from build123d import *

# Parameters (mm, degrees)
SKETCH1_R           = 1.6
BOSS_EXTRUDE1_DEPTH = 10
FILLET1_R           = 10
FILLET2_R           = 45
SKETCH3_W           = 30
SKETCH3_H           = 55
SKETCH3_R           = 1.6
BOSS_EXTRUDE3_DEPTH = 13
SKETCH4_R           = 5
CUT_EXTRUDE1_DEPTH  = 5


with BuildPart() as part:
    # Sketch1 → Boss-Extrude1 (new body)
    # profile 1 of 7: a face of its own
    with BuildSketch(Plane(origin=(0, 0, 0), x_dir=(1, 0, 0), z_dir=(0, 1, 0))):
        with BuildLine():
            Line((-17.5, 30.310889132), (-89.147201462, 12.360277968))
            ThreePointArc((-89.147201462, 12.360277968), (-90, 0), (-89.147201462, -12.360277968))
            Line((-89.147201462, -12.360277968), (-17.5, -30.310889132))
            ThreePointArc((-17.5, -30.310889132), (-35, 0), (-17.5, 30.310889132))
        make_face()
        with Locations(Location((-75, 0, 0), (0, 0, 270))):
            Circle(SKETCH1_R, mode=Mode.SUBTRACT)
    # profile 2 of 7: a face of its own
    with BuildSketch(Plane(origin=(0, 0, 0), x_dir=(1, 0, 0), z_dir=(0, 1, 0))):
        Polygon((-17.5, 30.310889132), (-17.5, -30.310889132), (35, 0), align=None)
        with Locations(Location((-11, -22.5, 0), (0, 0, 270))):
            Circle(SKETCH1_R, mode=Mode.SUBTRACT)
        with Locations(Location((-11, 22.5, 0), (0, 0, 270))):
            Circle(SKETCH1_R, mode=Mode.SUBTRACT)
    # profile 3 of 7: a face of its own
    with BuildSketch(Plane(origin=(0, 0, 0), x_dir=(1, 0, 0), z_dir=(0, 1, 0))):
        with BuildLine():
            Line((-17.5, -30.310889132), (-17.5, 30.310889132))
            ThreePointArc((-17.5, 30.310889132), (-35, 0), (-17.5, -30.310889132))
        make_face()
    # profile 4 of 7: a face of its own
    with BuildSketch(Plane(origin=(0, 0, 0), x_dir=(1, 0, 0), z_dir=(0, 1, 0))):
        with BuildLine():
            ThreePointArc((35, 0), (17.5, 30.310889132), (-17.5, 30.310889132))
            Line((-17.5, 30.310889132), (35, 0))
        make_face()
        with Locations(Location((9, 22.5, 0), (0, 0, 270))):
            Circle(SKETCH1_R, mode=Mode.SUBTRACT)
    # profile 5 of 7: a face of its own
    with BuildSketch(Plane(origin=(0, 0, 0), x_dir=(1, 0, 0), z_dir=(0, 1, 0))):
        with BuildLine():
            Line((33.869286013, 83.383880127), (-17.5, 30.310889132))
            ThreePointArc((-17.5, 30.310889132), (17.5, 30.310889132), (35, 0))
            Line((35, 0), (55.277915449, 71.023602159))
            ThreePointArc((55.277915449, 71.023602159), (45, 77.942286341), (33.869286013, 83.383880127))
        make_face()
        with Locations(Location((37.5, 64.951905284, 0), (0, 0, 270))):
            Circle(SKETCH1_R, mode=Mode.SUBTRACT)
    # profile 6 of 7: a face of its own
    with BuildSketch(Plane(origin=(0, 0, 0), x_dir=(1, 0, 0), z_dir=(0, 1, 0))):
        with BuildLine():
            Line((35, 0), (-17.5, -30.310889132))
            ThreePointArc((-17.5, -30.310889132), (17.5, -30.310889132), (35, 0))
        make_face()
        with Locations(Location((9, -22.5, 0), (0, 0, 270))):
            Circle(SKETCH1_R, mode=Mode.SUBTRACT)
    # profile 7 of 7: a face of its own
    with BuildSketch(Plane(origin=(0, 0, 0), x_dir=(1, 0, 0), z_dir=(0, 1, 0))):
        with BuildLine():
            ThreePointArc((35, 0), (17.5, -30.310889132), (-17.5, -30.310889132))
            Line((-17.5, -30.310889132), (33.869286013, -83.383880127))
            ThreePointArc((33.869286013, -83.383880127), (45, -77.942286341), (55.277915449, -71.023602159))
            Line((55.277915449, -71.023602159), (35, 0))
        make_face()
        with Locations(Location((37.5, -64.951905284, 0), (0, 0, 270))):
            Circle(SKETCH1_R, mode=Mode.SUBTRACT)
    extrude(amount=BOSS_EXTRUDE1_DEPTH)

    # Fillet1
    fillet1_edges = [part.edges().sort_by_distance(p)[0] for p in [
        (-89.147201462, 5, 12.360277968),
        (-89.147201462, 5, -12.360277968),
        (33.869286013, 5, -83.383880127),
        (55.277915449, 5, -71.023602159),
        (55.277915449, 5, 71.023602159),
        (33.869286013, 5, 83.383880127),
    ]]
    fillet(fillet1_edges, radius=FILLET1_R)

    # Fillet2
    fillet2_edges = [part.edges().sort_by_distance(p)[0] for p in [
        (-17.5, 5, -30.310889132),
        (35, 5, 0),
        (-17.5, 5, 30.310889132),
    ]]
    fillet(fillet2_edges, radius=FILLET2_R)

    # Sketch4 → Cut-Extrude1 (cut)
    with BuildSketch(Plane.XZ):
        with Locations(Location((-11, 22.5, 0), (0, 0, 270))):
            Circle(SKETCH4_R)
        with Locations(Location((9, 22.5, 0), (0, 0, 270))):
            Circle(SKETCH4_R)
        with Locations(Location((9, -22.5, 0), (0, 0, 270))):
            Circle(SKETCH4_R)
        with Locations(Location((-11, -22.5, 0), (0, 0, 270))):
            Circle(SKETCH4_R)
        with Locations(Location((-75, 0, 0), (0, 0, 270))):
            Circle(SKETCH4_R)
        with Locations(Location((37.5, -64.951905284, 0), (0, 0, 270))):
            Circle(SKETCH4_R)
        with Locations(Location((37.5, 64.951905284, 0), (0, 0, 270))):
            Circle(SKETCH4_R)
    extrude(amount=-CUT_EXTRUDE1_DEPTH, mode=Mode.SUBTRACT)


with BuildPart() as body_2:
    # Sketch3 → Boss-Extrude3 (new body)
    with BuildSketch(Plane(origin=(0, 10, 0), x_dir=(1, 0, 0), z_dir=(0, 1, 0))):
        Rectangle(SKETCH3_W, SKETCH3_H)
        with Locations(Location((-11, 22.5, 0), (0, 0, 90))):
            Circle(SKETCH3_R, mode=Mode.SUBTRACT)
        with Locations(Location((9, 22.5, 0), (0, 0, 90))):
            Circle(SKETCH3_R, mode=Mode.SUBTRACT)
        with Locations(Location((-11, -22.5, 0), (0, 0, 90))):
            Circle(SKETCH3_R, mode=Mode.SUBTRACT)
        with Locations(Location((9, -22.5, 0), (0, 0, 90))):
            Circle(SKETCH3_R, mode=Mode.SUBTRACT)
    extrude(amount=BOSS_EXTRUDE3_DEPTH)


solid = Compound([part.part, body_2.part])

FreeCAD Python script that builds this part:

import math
import FreeCAD as App
import Part
import Sketcher
from FreeCAD import Vector
Q = App.Units.Quantity


def edges_at(feature, points):
    """Names of the edges that pass closest to the given points."""
    edges = feature.Shape.Edges
    near = lambda p: min(range(len(edges)), key=lambda i: edges[i].distToShape(Part.Vertex(*p))[0])
    return sorted({f"Edge{near(p) + 1}" for p in points})

doc = App.newDocument("Part")
body = doc.addObject("PartDesign::Body", "Body")

# Sketch on XZ plane
sketch1 = body.newObject("Sketcher::SketchObject", "Sketch")
sketch1.AttachmentSupport = (doc.getObject("XZ_Plane"), [""])
sketch1.MapMode = "FlatFace"
sketch1.addGeometry(Part.LineSegment(Vector(-17.5, -30.3, 0), Vector(-89.1, -12.4, 0)), False)
sketch1.addGeometry(Part.ArcOfCircle(Part.Circle(Vector(0, 0, 0), Vector(0, 0, 1), 90), math.radians(172.11), math.radians(187.89)), False)
sketch1.addGeometry(Part.LineSegment(Vector(-89.1, 12.4, 0), Vector(-17.5, 30.3, 0)), False)
sketch1.addGeometry(Part.LineSegment(Vector(-17.5, 30.3, 0), Vector(33.9, 83.4, 0)), False)
sketch1.addGeometry(Part.ArcOfCircle(Part.Circle(Vector(0, 0, 0), Vector(0, 0, 1), 90), math.radians(52.11), math.radians(67.89)), False)
sketch1.addGeometry(Part.LineSegment(Vector(55.3, 71, 0), Vector(35, 0, 0)), False)
sketch1.addGeometry(Part.LineSegment(Vector(35, 0, 0), Vector(55.3, -71, 0)), False)
sketch1.addGeometry(Part.ArcOfCircle(Part.Circle(Vector(0, 0, 0), Vector(0, 0, 1), 90), math.radians(-67.89), math.radians(-52.11)), False)
sketch1.addGeometry(Part.LineSegment(Vector(33.9, -83.4, 0), Vector(-17.5, -30.3, 0)), False)
sketch1.addGeometry(Part.Circle(Vector(-75, 0, 0), Vector(0, 0, 1), 1.6), False)
sketch1.addGeometry(Part.Circle(Vector(-11, -22.5, 0), Vector(0, 0, 1), 1.6), False)
sketch1.addGeometry(Part.Circle(Vector(-11, 22.5, 0), Vector(0, 0, 1), 1.6), False)
sketch1.addGeometry(Part.Circle(Vector(9, -22.5, 0), Vector(0, 0, 1), 1.6), False)
sketch1.addGeometry(Part.Circle(Vector(9, 22.5, 0), Vector(0, 0, 1), 1.6), False)
sketch1.addGeometry(Part.Circle(Vector(37.5, -65, 0), Vector(0, 0, 1), 1.6), False)
sketch1.addGeometry(Part.Circle(Vector(37.5, 65, 0), Vector(0, 0, 1), 1.6), False)
sketch1.addConstraint(Sketcher.Constraint("Coincident", 0, 2, 1, 2))
sketch1.addConstraint(Sketcher.Constraint("Coincident", 1, 1, 2, 1))
sketch1.addConstraint(Sketcher.Constraint("Coincident", 2, 2, 3, 1))
sketch1.addConstraint(Sketcher.Constraint("Coincident", 3, 2, 4, 2))
sketch1.addConstraint(Sketcher.Constraint("Coincident", 4, 1, 5, 1))
sketch1.addConstraint(Sketcher.Constraint("Coincident", 5, 2, 6, 1))
sketch1.addConstraint(Sketcher.Constraint("Coincident", 6, 2, 7, 2))
sketch1.addConstraint(Sketcher.Constraint("Coincident", 7, 1, 8, 1))
sketch1.addConstraint(Sketcher.Constraint("Coincident", 8, 2, 0, 1))
sketch1.addConstraint(Sketcher.Constraint("Coincident", 1, 3, -1, 1))
sketch1.addConstraint(Sketcher.Constraint("Coincident", 4, 3, -1, 1))
sketch1.addConstraint(Sketcher.Constraint("Coincident", 7, 3, -1, 1))
sketch1.addConstraint(Sketcher.Constraint("Equal", 1, 4))
sketch1.addConstraint(Sketcher.Constraint("Equal", 4, 7))
sketch1.addConstraint(Sketcher.Constraint("Equal", 9, 10))
sketch1.addConstraint(Sketcher.Constraint("Equal", 10, 11))
sketch1.addConstraint(Sketcher.Constraint("Equal", 11, 12))
sketch1.addConstraint(Sketcher.Constraint("Equal", 12, 13))
sketch1.addConstraint(Sketcher.Constraint("Equal", 13, 14))
sketch1.addConstraint(Sketcher.Constraint("Equal", 14, 15))
sketch1.addConstraint(Sketcher.Constraint("Symmetric", 10, 3, 11, 3, -1))
sketch1.addConstraint(Sketcher.Constraint("Symmetric", 12, 3, 13, 3, -1))
sketch1.addConstraint(Sketcher.Constraint("Symmetric", 14, 3, 15, 3, -1))
sketch1.addConstraint(Sketcher.Constraint("Symmetric", 2, 2, 8, 2, -1))
sketch1.addConstraint(Sketcher.Constraint("PointOnObject", 9, 3, -1))
sketch1.addConstraint(Sketcher.Constraint("PointOnObject", 5, 2, -1))
sketch1.addConstraint(Sketcher.Constraint("Horizontal", 10, 3, 12, 3))
sketch1.addConstraint(Sketcher.Constraint("Vertical", 0, 2, 1, 1))
sketch1.addConstraint(Sketcher.Constraint("Vertical", 4, 1, 6, 2))
sketch1.addConstraint(Sketcher.Constraint("Vertical", 3, 2, 7, 1))
sketch1.addConstraint(Sketcher.Constraint("Equal", 2, 3))
sketch1.addConstraint(Sketcher.Constraint("Equal", 3, 5))
sketch1.addConstraint(Sketcher.Constraint("Radius", 1, Q("90 mm")))
sketch1.addConstraint(Sketcher.Constraint("Diameter", 9, Q("3.2 mm")))
sketch1.addConstraint(Sketcher.Constraint("DistanceX", 9, 3, -1, 1, Q("75 mm")))
sketch1.addConstraint(Sketcher.Constraint("DistanceX", 10, 3, -1, 1, Q("11 mm")))
sketch1.addConstraint(Sketcher.Constraint("DistanceX", -1, 1, 12, 3, Q("9 mm")))
sketch1.addConstraint(Sketcher.Constraint("DistanceX", -1, 1, 5, 2, Q("35 mm")))
sketch1.addConstraint(Sketcher.Constraint("DistanceY", 10, 3, 11, 3, Q("45 mm")))
sketch1.addConstraint(Sketcher.Constraint("DistanceX", -1, 1, 14, 3, Q("37.5 mm")))
sketch1.addConstraint(Sketcher.Constraint("DistanceX", 2, 2, -1, 1, Q("17.5 mm")))
sketch1.addConstraint(Sketcher.Constraint("DistanceX", 0, 2, -1, 1, Q("89.147201 mm")))
sketch1.addConstraint(Sketcher.Constraint("DistanceY", -1, 1, 2, 2, Q("30.310889 mm")))
sketch1.addConstraint(Sketcher.Constraint("DistanceY", 14, 3, -1, 1, Q("64.951905 mm")))
pad1 = body.newObject("PartDesign::Pad", "Pad")
pad1.Profile = sketch1
pad1.Length = 10
pad1.Reversed = True
doc.recompute()

fillet = body.newObject("PartDesign::Fillet", "Fillet")
fillet.Base = (pad1, edges_at(pad1, [
    (-89.147, 5, 12.36),
    (-89.147, 5, -12.36),
    (33.869, 5, -83.384),
    (55.278, 5, -71.024),
    (55.278, 5, 71.024),
    (33.869, 5, 83.384),
]))
fillet.Radius = 10
doc.recompute()

fillet2 = body.newObject("PartDesign::Fillet", "Fillet001")
fillet2.Base = (fillet, edges_at(fillet, [(-17.5, 5, -30.311), (35, 5, 0), (-17.5, 5, 30.311)]))
fillet2.Radius = 45

# Sketch on XZ plane
sketch2 = body.newObject("Sketcher::SketchObject", "Sketch001")
sketch2.AttachmentSupport = (doc.getObject("XZ_Plane"), [""])
sketch2.MapMode = "FlatFace"
sketch2.addGeometry(Part.Circle(Vector(-11, 22, 0), Vector(0, 0, 1), 5), False)
sketch2.addGeometry(Part.Circle(Vector(9, 22, 0), Vector(0, 0, 1), 5), False)
sketch2.addGeometry(Part.Circle(Vector(9, -22, 0), Vector(0, 0, 1), 5), False)
sketch2.addGeometry(Part.Circle(Vector(-11, -22, 0), Vector(0, 0, 1), 5), False)
sketch2.addGeometry(Part.Circle(Vector(-75, 0, 0), Vector(0, 0, 1), 5), False)
sketch2.addGeometry(Part.Circle(Vector(38, -65, 0), Vector(0, 0, 1), 5), False)
sketch2.addGeometry(Part.Circle(Vector(38, 65, 0), Vector(0, 0, 1), 5), False)
sketch2.addConstraint(Sketcher.Constraint("Equal", 0, 1))
sketch2.addConstraint(Sketcher.Constraint("Equal", 1, 2))
sketch2.addConstraint(Sketcher.Constraint("Equal", 2, 3))
sketch2.addConstraint(Sketcher.Constraint("Equal", 3, 4))
sketch2.addConstraint(Sketcher.Constraint("Equal", 4, 5))
sketch2.addConstraint(Sketcher.Constraint("Equal", 5, 6))
sketch2.addConstraint(Sketcher.Constraint("Symmetric", 1, 3, 2, 3, -1))
sketch2.addConstraint(Sketcher.Constraint("Symmetric", 0, 3, 3, 3, -1))
sketch2.addConstraint(Sketcher.Constraint("Symmetric", 5, 3, 6, 3, -1))
sketch2.addConstraint(Sketcher.Constraint("PointOnObject", 4, 3, -1))
sketch2.addConstraint(Sketcher.Constraint("Horizontal", 0, 3, 1, 3))
sketch2.addConstraint(Sketcher.Constraint("Diameter", 0, Q("10 mm")))
sketch2.addConstraint(Sketcher.Constraint("DistanceX", 0, 3, -1, 1, Q("11 mm")))
sketch2.addConstraint(Sketcher.Constraint("DistanceX", -1, 1, 1, 3, Q("9 mm")))
sketch2.addConstraint(Sketcher.Constraint("DistanceX", 4, 3, -1, 1, Q("75 mm")))
sketch2.addConstraint(Sketcher.Constraint("DistanceY", 2, 3, 1, 3, Q("45 mm")))
sketch2.addConstraint(Sketcher.Constraint("DistanceX", -1, 1, 5, 3, Q("37.5 mm")))
sketch2.addConstraint(Sketcher.Constraint("DistanceY", 5, 3, -1, 1, Q("64.951905 mm")))
pocket1 = body.newObject("PartDesign::Pocket", "Pocket")
pocket1.Profile = sketch2
pocket1.Length = 5
body2 = doc.addObject("PartDesign::Body", "Body001")

# Sketch on XZ plane
sketch3 = body2.newObject("Sketcher::SketchObject", "Sketch002")
sketch3.AttachmentSupport = (doc.getObject("XZ_Plane001"), [""])
sketch3.MapMode = "FlatFace"
sketch3.AttachmentOffset = App.Placement(Vector(0, 0, -10), App.Rotation())
sketch3.addGeometry(Part.LineSegment(Vector(-15, -27.5, 0), Vector(-15, 27.5, 0)), False)
sketch3.addGeometry(Part.LineSegment(Vector(-15, 27.5, 0), Vector(15, 27.5, 0)), False)
sketch3.addGeometry(Part.LineSegment(Vector(15, 27.5, 0), Vector(15, -27.5, 0)), False)
sketch3.addGeometry(Part.LineSegment(Vector(15, -27.5, 0), Vector(-15, -27.5, 0)), False)
sketch3.addGeometry(Part.Circle(Vector(-11, 22.5, 0), Vector(0, 0, 1), 1.6), False)
sketch3.addGeometry(Part.Circle(Vector(9, 22.5, 0), Vector(0, 0, 1), 1.6), False)
sketch3.addGeometry(Part.Circle(Vector(-11, -22.5, 0), Vector(0, 0, 1), 1.6), False)
sketch3.addGeometry(Part.Circle(Vector(9, -22.5, 0), Vector(0, 0, 1), 1.6), False)
sketch3.addConstraint(Sketcher.Constraint("Coincident", 0, 2, 1, 1))
sketch3.addConstraint(Sketcher.Constraint("Coincident", 1, 2, 2, 1))
sketch3.addConstraint(Sketcher.Constraint("Coincident", 2, 2, 3, 1))
sketch3.addConstraint(Sketcher.Constraint("Coincident", 3, 2, 0, 1))
sketch3.addConstraint(Sketcher.Constraint("Vertical", 0))
sketch3.addConstraint(Sketcher.Constraint("Horizontal", 1))
sketch3.addConstraint(Sketcher.Constraint("Vertical", 2))
sketch3.addConstraint(Sketcher.Constraint("Horizontal", 3))
sketch3.addConstraint(Sketcher.Constraint("Equal", 4, 5))
sketch3.addConstraint(Sketcher.Constraint("Equal", 5, 6))
sketch3.addConstraint(Sketcher.Constraint("Equal", 6, 7))
sketch3.addConstraint(Sketcher.Constraint("Symmetric", 0, 2, 2, 2, -1, 1))
sketch3.addConstraint(Sketcher.Constraint("Symmetric", 4, 3, 6, 3, -1))
sketch3.addConstraint(Sketcher.Constraint("Symmetric", 5, 3, 7, 3, -1))
sketch3.addConstraint(Sketcher.Constraint("Horizontal", 4, 3, 5, 3))
sketch3.addConstraint(Sketcher.Constraint("Diameter", 4, Q("3.2 mm")))
sketch3.addConstraint(Sketcher.Constraint("DistanceX", 1, 1, 1, 2, Q("30 mm")))
sketch3.addConstraint(Sketcher.Constraint("DistanceY", 0, 1, 0, 2, Q("55 mm")))
sketch3.addConstraint(Sketcher.Constraint("DistanceX", 4, 3, -1, 1, Q("11 mm")))
sketch3.addConstraint(Sketcher.Constraint("DistanceX", -1, 1, 5, 3, Q("9 mm")))
sketch3.addConstraint(Sketcher.Constraint("DistanceY", 6, 3, 4, 3, Q("45 mm")))
pad2 = body2.newObject("PartDesign::Pad", "Pad001")
pad2.Profile = sketch3
pad2.Length = 13
pad2.Reversed = True

doc.recompute()
